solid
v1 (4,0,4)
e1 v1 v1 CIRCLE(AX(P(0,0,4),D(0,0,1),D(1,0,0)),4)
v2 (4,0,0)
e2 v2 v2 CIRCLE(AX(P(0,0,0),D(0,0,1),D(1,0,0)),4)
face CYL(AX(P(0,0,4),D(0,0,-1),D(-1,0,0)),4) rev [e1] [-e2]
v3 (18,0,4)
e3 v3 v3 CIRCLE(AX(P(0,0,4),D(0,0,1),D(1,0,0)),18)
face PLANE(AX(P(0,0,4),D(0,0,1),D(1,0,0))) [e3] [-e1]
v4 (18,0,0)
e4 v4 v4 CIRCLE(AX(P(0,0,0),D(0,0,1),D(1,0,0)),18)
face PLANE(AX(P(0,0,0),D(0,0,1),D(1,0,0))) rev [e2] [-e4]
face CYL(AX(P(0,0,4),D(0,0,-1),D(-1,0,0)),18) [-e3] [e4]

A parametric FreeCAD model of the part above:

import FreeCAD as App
import Part
import Sketcher
from FreeCAD import Vector

doc = App.newDocument("Part")
body = doc.addObject("PartDesign::Body", "Body")

sketch1 = doc.addObject("Sketcher::SketchObject", "Sketch")
body.addObject(sketch1)
sketch1.AttachmentSupport = (doc.XY_Plane, [""])
sketch1.MapMode = "FlatFace"
sketch1.addGeometry([
    Part.Circle(Vector(0, 0, 0), Vector(0, 0, 1), 18),
    Part.Circle(Vector(0, 0, 0), Vector(0, 0, 1), 4),
], False)
sketch1.addConstraint([
    Sketcher.Constraint("Coincident", 0, 3, -1, 1),
    Sketcher.Constraint("Coincident", 1, 3, -1, 1),
    Sketcher.Constraint("Diameter", 0, 36.0),
    Sketcher.Constraint("Diameter", 1, 8.0),
])
pad1 = doc.addObject("PartDesign::Pad", "Pad")
body.addObject(pad1)
pad1.Profile = sketch1
pad1.Length = 4

doc.recompute()
